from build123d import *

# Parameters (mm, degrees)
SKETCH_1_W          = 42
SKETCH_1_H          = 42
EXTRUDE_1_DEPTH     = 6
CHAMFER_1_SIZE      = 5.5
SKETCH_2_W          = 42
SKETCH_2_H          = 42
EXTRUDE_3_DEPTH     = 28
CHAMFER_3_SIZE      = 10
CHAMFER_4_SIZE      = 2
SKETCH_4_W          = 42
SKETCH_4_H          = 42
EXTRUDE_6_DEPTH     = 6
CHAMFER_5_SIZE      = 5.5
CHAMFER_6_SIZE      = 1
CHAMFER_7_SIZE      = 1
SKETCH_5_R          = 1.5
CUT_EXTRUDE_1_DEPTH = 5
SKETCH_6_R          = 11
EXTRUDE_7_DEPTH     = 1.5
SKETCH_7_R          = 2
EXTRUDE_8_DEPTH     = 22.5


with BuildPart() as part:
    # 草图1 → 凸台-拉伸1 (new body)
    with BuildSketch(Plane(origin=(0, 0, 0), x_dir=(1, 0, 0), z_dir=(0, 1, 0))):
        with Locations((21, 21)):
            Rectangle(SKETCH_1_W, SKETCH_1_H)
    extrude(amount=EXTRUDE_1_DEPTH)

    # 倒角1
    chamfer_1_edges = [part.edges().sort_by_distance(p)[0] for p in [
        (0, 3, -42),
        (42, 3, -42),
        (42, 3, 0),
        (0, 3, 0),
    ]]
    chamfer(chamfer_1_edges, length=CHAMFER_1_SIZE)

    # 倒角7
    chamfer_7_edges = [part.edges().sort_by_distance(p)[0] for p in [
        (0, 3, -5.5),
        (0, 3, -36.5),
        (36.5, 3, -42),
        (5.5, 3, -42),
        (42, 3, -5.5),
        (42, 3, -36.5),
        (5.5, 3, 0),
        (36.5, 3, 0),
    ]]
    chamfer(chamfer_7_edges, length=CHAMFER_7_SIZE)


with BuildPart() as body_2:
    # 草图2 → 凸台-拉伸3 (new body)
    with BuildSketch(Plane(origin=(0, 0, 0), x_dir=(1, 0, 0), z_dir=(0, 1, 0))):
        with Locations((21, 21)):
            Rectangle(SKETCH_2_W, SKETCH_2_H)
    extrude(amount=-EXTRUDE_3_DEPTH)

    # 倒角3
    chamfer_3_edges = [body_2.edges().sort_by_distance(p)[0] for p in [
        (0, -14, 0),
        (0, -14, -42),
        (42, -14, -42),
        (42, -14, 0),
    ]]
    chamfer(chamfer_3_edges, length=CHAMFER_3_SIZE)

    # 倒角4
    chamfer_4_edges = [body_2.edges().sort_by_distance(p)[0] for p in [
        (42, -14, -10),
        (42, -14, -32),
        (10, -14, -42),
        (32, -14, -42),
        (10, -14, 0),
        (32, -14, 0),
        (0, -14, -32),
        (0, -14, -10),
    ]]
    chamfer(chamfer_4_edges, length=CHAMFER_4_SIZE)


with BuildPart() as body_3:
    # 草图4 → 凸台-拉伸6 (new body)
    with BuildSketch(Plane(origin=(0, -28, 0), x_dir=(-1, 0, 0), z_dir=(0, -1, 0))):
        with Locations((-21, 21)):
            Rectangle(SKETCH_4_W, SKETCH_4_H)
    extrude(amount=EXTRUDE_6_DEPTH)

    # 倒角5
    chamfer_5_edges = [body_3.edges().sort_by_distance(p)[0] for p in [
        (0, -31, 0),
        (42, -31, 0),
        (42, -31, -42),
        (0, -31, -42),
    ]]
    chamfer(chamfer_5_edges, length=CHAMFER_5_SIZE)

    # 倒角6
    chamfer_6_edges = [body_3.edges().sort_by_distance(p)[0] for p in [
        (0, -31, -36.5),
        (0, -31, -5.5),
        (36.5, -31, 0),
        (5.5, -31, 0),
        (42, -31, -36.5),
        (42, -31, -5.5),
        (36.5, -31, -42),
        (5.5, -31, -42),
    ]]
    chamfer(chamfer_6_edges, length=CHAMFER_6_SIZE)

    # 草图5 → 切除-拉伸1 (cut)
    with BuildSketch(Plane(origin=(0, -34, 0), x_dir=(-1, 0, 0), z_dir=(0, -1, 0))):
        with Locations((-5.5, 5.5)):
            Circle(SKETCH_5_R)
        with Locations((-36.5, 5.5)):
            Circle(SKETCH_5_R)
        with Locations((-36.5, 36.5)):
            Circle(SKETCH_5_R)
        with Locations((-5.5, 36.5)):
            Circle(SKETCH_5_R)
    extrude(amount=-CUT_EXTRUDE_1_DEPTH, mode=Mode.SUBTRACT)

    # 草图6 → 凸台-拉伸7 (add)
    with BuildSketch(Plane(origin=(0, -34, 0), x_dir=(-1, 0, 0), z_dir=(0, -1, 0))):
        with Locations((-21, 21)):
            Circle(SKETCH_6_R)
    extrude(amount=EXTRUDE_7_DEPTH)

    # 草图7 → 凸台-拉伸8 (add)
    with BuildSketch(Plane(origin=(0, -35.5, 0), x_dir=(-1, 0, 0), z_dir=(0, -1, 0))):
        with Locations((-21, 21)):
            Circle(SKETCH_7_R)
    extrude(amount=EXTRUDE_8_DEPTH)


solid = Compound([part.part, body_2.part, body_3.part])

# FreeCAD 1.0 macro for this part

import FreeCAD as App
import Part
import Sketcher

V = App.Vector


def edges_at(feature, points):
    """Names of the edges that pass closest to the given points."""
    edges = feature.Shape.Edges
    near = lambda p: min(range(len(edges)), key=lambda i: edges[i].distToShape(Part.Vertex(*p))[0])
    return sorted({f"Edge{near(p) + 1}" for p in points})


def add_polygon(sketch, points):
    """Adds a closed chain of lines whose ends are joined by coincident constraints."""
    first, n = sketch.GeometryCount, len(points)
    for a, b in zip(points, points[1:] + points[:1]):
        sketch.addGeometry(Part.LineSegment(App.Vector(*a, 0), App.Vector(*b, 0)), False)
    for i in range(n):
        sketch.addConstraint(Sketcher.Constraint("Coincident", first + i, 2, first + (i + 1) % n, 1))

doc = App.newDocument("Part")
params = doc.addObject("Spreadsheet::Sheet", "Params")
for row, (alias, value) in enumerate([
    ("sketch1_width", "42 mm"),
    ("pad1_length", "6 mm"),
    ("chamfer_size", "5.5 mm"),
    ("chamfer2_size", "1 mm"),
    ("sketch2_width", "42 mm"),
    ("pad2_length", "28 mm"),
    ("chamfer3_size", "10 mm"),
    ("chamfer4_size", "2 mm"),
    ("sketch3_width", "42 mm"),
    ("pad3_length", "6 mm"),
    ("chamfer5_size", "5.5 mm"),
    ("chamfer6_size", "1 mm"),
    ("sketch4_diameter", "3 mm"),
    ("pocket1_length", "5 mm"),
    ("sketch5_diameter", "22 mm"),
    ("pad4_length", "1.5 mm"),
    ("sketch6_diameter", "4 mm"),
    ("pad5_length", "22.5 mm"),
], start=1):
    params.set(f"A{row}", alias)
    params.set(f"B{row}", "=" + value)
    params.setAlias(f"B{row}", alias)

body = doc.addObject("PartDesign::Body", "Body")

sketch1 = body.newObject("Sketcher::SketchObject", "Sketch")
sketch1.AttachmentSupport = (doc.getObject("XZ_Plane"), [""])
sketch1.MapMode = "FlatFace"
add_polygon(sketch1, [(0, -42), (0, 0), (42, 0), (42, -42)])
sketch1.addConstraint([
    Sketcher.Constraint("Vertical", 0),
    Sketcher.Constraint("Horizontal", 1),
    Sketcher.Constraint("Vertical", 2),
    Sketcher.Constraint("Horizontal", 3),
    Sketcher.Constraint("Coincident", 0, 2, -1, 1),
    Sketcher.Constraint("Equal", 3, 0),
    Sketcher.Constraint("DistanceX", 1, 1, 1, 2, 42.0),
])
sketch1.setExpression("Constraints[10]", "Params.sketch1_width")
pad1 = body.newObject("PartDesign::Pad", "Pad")
pad1.Profile = sketch1
pad1.setExpression("Length", "Params.pad1_length")
pad1.Reversed = True
doc.recompute()

chamfer = body.newObject("PartDesign::Chamfer", "Chamfer")
chamfer.Base = (pad1, edges_at(pad1, [
    (0, 3, -42),
    (42, 3, -42),
    (42, 3, 0),
    (0, 3, 0),
]))
chamfer.setExpression("Size", "Params.chamfer_size")
doc.recompute()

chamfer2 = body.newObject("PartDesign::Chamfer", "Chamfer001")
chamfer2.Base = (chamfer, edges_at(chamfer, [
    (0, 3, -5.5),
    (0, 3, -36.5),
    (36.5, 3, -42),
    (5.5, 3, -42),
    (42, 3, -5.5),
    (42, 3, -36.5),
    (5.5, 3, 0),
    (36.5, 3, 0),
]))
chamfer2.setExpression("Size", "Params.chamfer2_size")
body2 = doc.addObject("PartDesign::Body", "Body001")

sketch2 = body2.newObject("Sketcher::SketchObject", "Sketch001")
sketch2.AttachmentSupport = (doc.getObject("XZ_Plane001"), [""])
sketch2.MapMode = "FlatFace"
add_polygon(sketch2, [(0, -42), (0, 0), (42, 0), (42, -42)])
sketch2.addConstraint([
    Sketcher.Constraint("Vertical", 0),
    Sketcher.Constraint("Horizontal", 1),
    Sketcher.Constraint("Vertical", 2),
    Sketcher.Constraint("Horizontal", 3),
    Sketcher.Constraint("Coincident", 0, 2, -1, 1),
    Sketcher.Constraint("Equal", 3, 0),
    Sketcher.Constraint("DistanceX", 1, 1, 1, 2, 42.0),
])
sketch2.setExpression("Constraints[10]", "Params.sketch2_width")
pad2 = body2.newObject("PartDesign::Pad", "Pad001")
pad2.Profile = sketch2
pad2.setExpression("Length", "Params.pad2_length")
doc.recompute()

chamfer3 = body2.newObject("PartDesign::Chamfer", "Chamfer002")
chamfer3.Base = (pad2, edges_at(pad2, [
    (0, -14, 0),
    (0, -14, -42),
    (42, -14, -42),
    (42, -14, 0),
]))
chamfer3.setExpression("Size", "Params.chamfer3_size")
doc.recompute()

chamfer4 = body2.newObject("PartDesign::Chamfer", "Chamfer003")
chamfer4.Base = (chamfer3, edges_at(chamfer3, [
    (42, -14, -10),
    (42, -14, -32),
    (10, -14, -42),
    (32, -14, -42),
    (10, -14, 0),
    (32, -14, 0),
    (0, -14, -32),
    (0, -14, -10),
]))
chamfer4.setExpression("Size", "Params.chamfer4_size")
body3 = doc.addObject("PartDesign::Body", "Body002")

sketch3 = body3.newObject("Sketcher::SketchObject", "Sketch002")
sketch3.AttachmentSupport = (doc.getObject("XZ_Plane002"), [""])
sketch3.MapMode = "FlatFace"
sketch3.AttachmentOffset = App.Placement(V(0, 0, 28), App.Rotation())
add_polygon(sketch3, [(42, -42), (42, 0), (0, 0), (0, -42)])
sketch3.addConstraint([
    Sketcher.Constraint("Vertical", 0),
    Sketcher.Constraint("Horizontal", 1),
    Sketcher.Constraint("Vertical", 2),
    Sketcher.Constraint("Horizontal", 3),
    Sketcher.Constraint("Coincident", 1, 2, -1, 1),
    Sketcher.Constraint("Equal", 3, 0),
    Sketcher.Constraint("DistanceX", 1, 2, 1, 1, 42.0),
])
sketch3.setExpression("Constraints[10]", "Params.sketch3_width")
pad3 = body3.newObject("PartDesign::Pad", "Pad002")
pad3.Profile = sketch3
pad3.setExpression("Length", "Params.pad3_length")
doc.recompute()

chamfer5 = body3.newObject("PartDesign::Chamfer", "Chamfer004")
chamfer5.Base = (pad3, edges_at(pad3, [
    (0, -31, 0),
    (42, -31, 0),
    (42, -31, -42),
    (0, -31, -42),
]))
chamfer5.setExpression("Size", "Params.chamfer5_size")
doc.recompute()

chamfer6 = body3.newObject("PartDesign::Chamfer", "Chamfer005")
chamfer6.Base = (chamfer5, edges_at(chamfer5, [
    (0, -31, -36.5),
    (0, -31, -5.5),
    (36.5, -31, 0),
    (5.5, -31, 0),
    (42, -31, -36.5),
    (42, -31, -5.5),
    (36.5, -31, -42),
    (5.5, -31, -42),
]))
chamfer6.setExpression("Size", "Params.chamfer6_size")

sketch4 = body3.newObject("Sketcher::SketchObject", "Sketch003")
sketch4.AttachmentSupport = (doc.getObject("XZ_Plane002"), [""])
sketch4.MapMode = "FlatFace"
sketch4.AttachmentOffset = App.Placement(V(0, 0, 34), App.Rotation())
sketch4.addGeometry([
    Part.Circle(V(5.5, -5.5, 0), V(0, 0, 1), 1.5),
    Part.Circle(V(36.5, -5.5, 0), V(0, 0, 1), 1.5),
    Part.Circle(V(36.5, -36.5, 0), V(0, 0, 1), 1.5),
    Part.Circle(V(5.5, -36.5, 0), V(0, 0, 1), 1.5),
], False)
sketch4.addConstraint([
    Sketcher.Constraint("Equal", 0, 1),
    Sketcher.Constraint("Equal", 1, 2),
    Sketcher.Constraint("Equal", 2, 3),
    Sketcher.Constraint("Horizontal", 0, 3, 1, 3),
    Sketcher.Constraint("Horizontal", 2, 3, 3, 3),
    Sketcher.Constraint("Vertical", 1, 3, 2, 3),
    Sketcher.Constraint("Vertical", 0, 3, 3, 3),
    Sketcher.Constraint("Diameter", 0, 3.0),
    Sketcher.Constraint("DistanceX", 0, 3, 1, 3, 31.0),
    Sketcher.Constraint("DistanceY", 2, 3, 1, 3, 31.0),
    Sketcher.Constraint("DistanceX", -1, 1, 0, 3, 5.5),
    Sketcher.Constraint("DistanceY", 0, 3, -1, 1, 5.5),
])
sketch4.setExpression("Constraints[7]", "Params.sketch4_diameter")
pocket1 = body3.newObject("PartDesign::Pocket", "Pocket")
pocket1.Profile = sketch4
pocket1.setExpression("Length", "Params.pocket1_length")

sketch5 = body3.newObject("Sketcher::SketchObject", "Sketch004")
sketch5.AttachmentSupport = (doc.getObject("XZ_Plane002"), [""])
sketch5.MapMode = "FlatFace"
sketch5.AttachmentOffset = App.Placement(V(0, 0, 34), App.Rotation())
sketch5.addGeometry(Part.Circle(V(21, -21, 0), V(0, 0, 1), 11), False)
sketch5.addConstraint([
    Sketcher.Constraint("Diameter", 0, 22.0),
    Sketcher.Constraint("DistanceX", -1, 1, 0, 3, 21.0),
    Sketcher.Constraint("DistanceY", 0, 3, -1, 1, 21.0),
])
sketch5.setExpression("Constraints[0]", "Params.sketch5_diameter")
pad4 = body3.newObject("PartDesign::Pad", "Pad003")
pad4.Profile = sketch5
pad4.setExpression("Length", "Params.pad4_length")

sketch6 = body3.newObject("Sketcher::SketchObject", "Sketch005")
sketch6.AttachmentSupport = (doc.getObject("XZ_Plane002"), [""])
sketch6.MapMode = "FlatFace"
sketch6.AttachmentOffset = App.Placement(V(0, 0, 35.5), App.Rotation())
sketch6.addGeometry(Part.Circle(V(21, -21, 0), V(0, 0, 1), 2), False)
sketch6.addConstraint([
    Sketcher.Constraint("Diameter", 0, 4.0),
    Sketcher.Constraint("DistanceX", -1, 1, 0, 3, 21.0),
    Sketcher.Constraint("DistanceY", 0, 3, -1, 1, 21.0),
])
sketch6.setExpression("Constraints[0]", "Params.sketch6_diameter")
pad5 = body3.newObject("PartDesign::Pad", "Pad004")
pad5.Profile = sketch6
pad5.setExpression("Length", "Params.pad5_length")

doc.recompute()
